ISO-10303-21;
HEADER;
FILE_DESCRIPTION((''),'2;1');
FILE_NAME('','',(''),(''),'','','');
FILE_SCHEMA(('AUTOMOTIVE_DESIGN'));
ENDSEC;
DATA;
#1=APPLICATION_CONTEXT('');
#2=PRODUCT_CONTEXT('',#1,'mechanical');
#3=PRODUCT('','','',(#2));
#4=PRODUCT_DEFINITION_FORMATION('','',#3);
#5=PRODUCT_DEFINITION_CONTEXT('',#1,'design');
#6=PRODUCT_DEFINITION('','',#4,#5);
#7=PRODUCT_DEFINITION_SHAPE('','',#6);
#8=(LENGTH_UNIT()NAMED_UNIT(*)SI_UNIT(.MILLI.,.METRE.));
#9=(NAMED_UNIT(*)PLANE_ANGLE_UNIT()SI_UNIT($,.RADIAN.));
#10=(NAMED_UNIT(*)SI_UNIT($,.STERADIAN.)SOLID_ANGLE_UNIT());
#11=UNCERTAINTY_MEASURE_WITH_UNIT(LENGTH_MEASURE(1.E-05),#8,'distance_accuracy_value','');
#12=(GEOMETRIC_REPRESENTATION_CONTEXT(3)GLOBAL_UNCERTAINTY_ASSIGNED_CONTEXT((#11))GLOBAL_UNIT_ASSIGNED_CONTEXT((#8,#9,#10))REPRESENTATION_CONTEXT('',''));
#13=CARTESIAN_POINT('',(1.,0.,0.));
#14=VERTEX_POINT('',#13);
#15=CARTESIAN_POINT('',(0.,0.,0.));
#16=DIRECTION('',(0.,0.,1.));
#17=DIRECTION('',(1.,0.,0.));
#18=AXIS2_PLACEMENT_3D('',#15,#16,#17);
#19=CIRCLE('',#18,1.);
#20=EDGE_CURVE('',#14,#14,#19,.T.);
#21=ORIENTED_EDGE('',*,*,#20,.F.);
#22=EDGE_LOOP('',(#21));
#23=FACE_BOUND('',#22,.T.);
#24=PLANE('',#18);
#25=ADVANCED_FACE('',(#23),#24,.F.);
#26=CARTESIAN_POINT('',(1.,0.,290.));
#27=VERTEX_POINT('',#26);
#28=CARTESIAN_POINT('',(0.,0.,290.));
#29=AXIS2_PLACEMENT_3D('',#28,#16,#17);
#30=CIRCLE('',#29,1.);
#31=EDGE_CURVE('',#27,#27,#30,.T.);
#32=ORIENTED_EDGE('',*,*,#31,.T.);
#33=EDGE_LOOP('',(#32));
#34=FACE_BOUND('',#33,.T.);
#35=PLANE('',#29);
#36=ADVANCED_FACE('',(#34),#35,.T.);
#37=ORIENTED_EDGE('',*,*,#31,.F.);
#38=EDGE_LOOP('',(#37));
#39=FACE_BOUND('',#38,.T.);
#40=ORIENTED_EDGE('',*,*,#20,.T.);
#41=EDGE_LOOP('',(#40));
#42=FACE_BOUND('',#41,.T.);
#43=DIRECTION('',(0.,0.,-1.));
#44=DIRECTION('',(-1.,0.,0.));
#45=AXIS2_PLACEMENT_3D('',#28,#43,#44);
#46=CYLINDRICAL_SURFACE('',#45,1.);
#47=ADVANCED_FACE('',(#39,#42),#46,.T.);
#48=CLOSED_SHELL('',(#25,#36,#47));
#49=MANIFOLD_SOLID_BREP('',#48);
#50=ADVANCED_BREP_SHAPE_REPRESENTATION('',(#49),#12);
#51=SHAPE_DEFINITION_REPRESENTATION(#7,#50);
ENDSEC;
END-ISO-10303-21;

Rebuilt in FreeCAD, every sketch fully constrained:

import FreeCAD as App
import Part
import Sketcher

V = App.Vector

doc = App.newDocument("Part")
body = doc.addObject("PartDesign::Body", "Body")

# Sketch on XY plane
sketch1 = body.newObject("Sketcher::SketchObject", "Sketch")
sketch1.AttachmentSupport = (doc.getObject("XY_Plane"), [""])
sketch1.MapMode = "FlatFace"
sketch1.addGeometry(Part.Circle(V(0, 0, 0), V(0, 0, 1), 1), False)
sketch1.addConstraint([
    Sketcher.Constraint("Coincident", 0, 3, -1, 1),
    Sketcher.Constraint("Diameter", 0, 2.0),
])
pad1 = body.newObject("PartDesign::Pad", "Pad")
pad1.Profile = sketch1
pad1.Length = 290

doc.recompute()
